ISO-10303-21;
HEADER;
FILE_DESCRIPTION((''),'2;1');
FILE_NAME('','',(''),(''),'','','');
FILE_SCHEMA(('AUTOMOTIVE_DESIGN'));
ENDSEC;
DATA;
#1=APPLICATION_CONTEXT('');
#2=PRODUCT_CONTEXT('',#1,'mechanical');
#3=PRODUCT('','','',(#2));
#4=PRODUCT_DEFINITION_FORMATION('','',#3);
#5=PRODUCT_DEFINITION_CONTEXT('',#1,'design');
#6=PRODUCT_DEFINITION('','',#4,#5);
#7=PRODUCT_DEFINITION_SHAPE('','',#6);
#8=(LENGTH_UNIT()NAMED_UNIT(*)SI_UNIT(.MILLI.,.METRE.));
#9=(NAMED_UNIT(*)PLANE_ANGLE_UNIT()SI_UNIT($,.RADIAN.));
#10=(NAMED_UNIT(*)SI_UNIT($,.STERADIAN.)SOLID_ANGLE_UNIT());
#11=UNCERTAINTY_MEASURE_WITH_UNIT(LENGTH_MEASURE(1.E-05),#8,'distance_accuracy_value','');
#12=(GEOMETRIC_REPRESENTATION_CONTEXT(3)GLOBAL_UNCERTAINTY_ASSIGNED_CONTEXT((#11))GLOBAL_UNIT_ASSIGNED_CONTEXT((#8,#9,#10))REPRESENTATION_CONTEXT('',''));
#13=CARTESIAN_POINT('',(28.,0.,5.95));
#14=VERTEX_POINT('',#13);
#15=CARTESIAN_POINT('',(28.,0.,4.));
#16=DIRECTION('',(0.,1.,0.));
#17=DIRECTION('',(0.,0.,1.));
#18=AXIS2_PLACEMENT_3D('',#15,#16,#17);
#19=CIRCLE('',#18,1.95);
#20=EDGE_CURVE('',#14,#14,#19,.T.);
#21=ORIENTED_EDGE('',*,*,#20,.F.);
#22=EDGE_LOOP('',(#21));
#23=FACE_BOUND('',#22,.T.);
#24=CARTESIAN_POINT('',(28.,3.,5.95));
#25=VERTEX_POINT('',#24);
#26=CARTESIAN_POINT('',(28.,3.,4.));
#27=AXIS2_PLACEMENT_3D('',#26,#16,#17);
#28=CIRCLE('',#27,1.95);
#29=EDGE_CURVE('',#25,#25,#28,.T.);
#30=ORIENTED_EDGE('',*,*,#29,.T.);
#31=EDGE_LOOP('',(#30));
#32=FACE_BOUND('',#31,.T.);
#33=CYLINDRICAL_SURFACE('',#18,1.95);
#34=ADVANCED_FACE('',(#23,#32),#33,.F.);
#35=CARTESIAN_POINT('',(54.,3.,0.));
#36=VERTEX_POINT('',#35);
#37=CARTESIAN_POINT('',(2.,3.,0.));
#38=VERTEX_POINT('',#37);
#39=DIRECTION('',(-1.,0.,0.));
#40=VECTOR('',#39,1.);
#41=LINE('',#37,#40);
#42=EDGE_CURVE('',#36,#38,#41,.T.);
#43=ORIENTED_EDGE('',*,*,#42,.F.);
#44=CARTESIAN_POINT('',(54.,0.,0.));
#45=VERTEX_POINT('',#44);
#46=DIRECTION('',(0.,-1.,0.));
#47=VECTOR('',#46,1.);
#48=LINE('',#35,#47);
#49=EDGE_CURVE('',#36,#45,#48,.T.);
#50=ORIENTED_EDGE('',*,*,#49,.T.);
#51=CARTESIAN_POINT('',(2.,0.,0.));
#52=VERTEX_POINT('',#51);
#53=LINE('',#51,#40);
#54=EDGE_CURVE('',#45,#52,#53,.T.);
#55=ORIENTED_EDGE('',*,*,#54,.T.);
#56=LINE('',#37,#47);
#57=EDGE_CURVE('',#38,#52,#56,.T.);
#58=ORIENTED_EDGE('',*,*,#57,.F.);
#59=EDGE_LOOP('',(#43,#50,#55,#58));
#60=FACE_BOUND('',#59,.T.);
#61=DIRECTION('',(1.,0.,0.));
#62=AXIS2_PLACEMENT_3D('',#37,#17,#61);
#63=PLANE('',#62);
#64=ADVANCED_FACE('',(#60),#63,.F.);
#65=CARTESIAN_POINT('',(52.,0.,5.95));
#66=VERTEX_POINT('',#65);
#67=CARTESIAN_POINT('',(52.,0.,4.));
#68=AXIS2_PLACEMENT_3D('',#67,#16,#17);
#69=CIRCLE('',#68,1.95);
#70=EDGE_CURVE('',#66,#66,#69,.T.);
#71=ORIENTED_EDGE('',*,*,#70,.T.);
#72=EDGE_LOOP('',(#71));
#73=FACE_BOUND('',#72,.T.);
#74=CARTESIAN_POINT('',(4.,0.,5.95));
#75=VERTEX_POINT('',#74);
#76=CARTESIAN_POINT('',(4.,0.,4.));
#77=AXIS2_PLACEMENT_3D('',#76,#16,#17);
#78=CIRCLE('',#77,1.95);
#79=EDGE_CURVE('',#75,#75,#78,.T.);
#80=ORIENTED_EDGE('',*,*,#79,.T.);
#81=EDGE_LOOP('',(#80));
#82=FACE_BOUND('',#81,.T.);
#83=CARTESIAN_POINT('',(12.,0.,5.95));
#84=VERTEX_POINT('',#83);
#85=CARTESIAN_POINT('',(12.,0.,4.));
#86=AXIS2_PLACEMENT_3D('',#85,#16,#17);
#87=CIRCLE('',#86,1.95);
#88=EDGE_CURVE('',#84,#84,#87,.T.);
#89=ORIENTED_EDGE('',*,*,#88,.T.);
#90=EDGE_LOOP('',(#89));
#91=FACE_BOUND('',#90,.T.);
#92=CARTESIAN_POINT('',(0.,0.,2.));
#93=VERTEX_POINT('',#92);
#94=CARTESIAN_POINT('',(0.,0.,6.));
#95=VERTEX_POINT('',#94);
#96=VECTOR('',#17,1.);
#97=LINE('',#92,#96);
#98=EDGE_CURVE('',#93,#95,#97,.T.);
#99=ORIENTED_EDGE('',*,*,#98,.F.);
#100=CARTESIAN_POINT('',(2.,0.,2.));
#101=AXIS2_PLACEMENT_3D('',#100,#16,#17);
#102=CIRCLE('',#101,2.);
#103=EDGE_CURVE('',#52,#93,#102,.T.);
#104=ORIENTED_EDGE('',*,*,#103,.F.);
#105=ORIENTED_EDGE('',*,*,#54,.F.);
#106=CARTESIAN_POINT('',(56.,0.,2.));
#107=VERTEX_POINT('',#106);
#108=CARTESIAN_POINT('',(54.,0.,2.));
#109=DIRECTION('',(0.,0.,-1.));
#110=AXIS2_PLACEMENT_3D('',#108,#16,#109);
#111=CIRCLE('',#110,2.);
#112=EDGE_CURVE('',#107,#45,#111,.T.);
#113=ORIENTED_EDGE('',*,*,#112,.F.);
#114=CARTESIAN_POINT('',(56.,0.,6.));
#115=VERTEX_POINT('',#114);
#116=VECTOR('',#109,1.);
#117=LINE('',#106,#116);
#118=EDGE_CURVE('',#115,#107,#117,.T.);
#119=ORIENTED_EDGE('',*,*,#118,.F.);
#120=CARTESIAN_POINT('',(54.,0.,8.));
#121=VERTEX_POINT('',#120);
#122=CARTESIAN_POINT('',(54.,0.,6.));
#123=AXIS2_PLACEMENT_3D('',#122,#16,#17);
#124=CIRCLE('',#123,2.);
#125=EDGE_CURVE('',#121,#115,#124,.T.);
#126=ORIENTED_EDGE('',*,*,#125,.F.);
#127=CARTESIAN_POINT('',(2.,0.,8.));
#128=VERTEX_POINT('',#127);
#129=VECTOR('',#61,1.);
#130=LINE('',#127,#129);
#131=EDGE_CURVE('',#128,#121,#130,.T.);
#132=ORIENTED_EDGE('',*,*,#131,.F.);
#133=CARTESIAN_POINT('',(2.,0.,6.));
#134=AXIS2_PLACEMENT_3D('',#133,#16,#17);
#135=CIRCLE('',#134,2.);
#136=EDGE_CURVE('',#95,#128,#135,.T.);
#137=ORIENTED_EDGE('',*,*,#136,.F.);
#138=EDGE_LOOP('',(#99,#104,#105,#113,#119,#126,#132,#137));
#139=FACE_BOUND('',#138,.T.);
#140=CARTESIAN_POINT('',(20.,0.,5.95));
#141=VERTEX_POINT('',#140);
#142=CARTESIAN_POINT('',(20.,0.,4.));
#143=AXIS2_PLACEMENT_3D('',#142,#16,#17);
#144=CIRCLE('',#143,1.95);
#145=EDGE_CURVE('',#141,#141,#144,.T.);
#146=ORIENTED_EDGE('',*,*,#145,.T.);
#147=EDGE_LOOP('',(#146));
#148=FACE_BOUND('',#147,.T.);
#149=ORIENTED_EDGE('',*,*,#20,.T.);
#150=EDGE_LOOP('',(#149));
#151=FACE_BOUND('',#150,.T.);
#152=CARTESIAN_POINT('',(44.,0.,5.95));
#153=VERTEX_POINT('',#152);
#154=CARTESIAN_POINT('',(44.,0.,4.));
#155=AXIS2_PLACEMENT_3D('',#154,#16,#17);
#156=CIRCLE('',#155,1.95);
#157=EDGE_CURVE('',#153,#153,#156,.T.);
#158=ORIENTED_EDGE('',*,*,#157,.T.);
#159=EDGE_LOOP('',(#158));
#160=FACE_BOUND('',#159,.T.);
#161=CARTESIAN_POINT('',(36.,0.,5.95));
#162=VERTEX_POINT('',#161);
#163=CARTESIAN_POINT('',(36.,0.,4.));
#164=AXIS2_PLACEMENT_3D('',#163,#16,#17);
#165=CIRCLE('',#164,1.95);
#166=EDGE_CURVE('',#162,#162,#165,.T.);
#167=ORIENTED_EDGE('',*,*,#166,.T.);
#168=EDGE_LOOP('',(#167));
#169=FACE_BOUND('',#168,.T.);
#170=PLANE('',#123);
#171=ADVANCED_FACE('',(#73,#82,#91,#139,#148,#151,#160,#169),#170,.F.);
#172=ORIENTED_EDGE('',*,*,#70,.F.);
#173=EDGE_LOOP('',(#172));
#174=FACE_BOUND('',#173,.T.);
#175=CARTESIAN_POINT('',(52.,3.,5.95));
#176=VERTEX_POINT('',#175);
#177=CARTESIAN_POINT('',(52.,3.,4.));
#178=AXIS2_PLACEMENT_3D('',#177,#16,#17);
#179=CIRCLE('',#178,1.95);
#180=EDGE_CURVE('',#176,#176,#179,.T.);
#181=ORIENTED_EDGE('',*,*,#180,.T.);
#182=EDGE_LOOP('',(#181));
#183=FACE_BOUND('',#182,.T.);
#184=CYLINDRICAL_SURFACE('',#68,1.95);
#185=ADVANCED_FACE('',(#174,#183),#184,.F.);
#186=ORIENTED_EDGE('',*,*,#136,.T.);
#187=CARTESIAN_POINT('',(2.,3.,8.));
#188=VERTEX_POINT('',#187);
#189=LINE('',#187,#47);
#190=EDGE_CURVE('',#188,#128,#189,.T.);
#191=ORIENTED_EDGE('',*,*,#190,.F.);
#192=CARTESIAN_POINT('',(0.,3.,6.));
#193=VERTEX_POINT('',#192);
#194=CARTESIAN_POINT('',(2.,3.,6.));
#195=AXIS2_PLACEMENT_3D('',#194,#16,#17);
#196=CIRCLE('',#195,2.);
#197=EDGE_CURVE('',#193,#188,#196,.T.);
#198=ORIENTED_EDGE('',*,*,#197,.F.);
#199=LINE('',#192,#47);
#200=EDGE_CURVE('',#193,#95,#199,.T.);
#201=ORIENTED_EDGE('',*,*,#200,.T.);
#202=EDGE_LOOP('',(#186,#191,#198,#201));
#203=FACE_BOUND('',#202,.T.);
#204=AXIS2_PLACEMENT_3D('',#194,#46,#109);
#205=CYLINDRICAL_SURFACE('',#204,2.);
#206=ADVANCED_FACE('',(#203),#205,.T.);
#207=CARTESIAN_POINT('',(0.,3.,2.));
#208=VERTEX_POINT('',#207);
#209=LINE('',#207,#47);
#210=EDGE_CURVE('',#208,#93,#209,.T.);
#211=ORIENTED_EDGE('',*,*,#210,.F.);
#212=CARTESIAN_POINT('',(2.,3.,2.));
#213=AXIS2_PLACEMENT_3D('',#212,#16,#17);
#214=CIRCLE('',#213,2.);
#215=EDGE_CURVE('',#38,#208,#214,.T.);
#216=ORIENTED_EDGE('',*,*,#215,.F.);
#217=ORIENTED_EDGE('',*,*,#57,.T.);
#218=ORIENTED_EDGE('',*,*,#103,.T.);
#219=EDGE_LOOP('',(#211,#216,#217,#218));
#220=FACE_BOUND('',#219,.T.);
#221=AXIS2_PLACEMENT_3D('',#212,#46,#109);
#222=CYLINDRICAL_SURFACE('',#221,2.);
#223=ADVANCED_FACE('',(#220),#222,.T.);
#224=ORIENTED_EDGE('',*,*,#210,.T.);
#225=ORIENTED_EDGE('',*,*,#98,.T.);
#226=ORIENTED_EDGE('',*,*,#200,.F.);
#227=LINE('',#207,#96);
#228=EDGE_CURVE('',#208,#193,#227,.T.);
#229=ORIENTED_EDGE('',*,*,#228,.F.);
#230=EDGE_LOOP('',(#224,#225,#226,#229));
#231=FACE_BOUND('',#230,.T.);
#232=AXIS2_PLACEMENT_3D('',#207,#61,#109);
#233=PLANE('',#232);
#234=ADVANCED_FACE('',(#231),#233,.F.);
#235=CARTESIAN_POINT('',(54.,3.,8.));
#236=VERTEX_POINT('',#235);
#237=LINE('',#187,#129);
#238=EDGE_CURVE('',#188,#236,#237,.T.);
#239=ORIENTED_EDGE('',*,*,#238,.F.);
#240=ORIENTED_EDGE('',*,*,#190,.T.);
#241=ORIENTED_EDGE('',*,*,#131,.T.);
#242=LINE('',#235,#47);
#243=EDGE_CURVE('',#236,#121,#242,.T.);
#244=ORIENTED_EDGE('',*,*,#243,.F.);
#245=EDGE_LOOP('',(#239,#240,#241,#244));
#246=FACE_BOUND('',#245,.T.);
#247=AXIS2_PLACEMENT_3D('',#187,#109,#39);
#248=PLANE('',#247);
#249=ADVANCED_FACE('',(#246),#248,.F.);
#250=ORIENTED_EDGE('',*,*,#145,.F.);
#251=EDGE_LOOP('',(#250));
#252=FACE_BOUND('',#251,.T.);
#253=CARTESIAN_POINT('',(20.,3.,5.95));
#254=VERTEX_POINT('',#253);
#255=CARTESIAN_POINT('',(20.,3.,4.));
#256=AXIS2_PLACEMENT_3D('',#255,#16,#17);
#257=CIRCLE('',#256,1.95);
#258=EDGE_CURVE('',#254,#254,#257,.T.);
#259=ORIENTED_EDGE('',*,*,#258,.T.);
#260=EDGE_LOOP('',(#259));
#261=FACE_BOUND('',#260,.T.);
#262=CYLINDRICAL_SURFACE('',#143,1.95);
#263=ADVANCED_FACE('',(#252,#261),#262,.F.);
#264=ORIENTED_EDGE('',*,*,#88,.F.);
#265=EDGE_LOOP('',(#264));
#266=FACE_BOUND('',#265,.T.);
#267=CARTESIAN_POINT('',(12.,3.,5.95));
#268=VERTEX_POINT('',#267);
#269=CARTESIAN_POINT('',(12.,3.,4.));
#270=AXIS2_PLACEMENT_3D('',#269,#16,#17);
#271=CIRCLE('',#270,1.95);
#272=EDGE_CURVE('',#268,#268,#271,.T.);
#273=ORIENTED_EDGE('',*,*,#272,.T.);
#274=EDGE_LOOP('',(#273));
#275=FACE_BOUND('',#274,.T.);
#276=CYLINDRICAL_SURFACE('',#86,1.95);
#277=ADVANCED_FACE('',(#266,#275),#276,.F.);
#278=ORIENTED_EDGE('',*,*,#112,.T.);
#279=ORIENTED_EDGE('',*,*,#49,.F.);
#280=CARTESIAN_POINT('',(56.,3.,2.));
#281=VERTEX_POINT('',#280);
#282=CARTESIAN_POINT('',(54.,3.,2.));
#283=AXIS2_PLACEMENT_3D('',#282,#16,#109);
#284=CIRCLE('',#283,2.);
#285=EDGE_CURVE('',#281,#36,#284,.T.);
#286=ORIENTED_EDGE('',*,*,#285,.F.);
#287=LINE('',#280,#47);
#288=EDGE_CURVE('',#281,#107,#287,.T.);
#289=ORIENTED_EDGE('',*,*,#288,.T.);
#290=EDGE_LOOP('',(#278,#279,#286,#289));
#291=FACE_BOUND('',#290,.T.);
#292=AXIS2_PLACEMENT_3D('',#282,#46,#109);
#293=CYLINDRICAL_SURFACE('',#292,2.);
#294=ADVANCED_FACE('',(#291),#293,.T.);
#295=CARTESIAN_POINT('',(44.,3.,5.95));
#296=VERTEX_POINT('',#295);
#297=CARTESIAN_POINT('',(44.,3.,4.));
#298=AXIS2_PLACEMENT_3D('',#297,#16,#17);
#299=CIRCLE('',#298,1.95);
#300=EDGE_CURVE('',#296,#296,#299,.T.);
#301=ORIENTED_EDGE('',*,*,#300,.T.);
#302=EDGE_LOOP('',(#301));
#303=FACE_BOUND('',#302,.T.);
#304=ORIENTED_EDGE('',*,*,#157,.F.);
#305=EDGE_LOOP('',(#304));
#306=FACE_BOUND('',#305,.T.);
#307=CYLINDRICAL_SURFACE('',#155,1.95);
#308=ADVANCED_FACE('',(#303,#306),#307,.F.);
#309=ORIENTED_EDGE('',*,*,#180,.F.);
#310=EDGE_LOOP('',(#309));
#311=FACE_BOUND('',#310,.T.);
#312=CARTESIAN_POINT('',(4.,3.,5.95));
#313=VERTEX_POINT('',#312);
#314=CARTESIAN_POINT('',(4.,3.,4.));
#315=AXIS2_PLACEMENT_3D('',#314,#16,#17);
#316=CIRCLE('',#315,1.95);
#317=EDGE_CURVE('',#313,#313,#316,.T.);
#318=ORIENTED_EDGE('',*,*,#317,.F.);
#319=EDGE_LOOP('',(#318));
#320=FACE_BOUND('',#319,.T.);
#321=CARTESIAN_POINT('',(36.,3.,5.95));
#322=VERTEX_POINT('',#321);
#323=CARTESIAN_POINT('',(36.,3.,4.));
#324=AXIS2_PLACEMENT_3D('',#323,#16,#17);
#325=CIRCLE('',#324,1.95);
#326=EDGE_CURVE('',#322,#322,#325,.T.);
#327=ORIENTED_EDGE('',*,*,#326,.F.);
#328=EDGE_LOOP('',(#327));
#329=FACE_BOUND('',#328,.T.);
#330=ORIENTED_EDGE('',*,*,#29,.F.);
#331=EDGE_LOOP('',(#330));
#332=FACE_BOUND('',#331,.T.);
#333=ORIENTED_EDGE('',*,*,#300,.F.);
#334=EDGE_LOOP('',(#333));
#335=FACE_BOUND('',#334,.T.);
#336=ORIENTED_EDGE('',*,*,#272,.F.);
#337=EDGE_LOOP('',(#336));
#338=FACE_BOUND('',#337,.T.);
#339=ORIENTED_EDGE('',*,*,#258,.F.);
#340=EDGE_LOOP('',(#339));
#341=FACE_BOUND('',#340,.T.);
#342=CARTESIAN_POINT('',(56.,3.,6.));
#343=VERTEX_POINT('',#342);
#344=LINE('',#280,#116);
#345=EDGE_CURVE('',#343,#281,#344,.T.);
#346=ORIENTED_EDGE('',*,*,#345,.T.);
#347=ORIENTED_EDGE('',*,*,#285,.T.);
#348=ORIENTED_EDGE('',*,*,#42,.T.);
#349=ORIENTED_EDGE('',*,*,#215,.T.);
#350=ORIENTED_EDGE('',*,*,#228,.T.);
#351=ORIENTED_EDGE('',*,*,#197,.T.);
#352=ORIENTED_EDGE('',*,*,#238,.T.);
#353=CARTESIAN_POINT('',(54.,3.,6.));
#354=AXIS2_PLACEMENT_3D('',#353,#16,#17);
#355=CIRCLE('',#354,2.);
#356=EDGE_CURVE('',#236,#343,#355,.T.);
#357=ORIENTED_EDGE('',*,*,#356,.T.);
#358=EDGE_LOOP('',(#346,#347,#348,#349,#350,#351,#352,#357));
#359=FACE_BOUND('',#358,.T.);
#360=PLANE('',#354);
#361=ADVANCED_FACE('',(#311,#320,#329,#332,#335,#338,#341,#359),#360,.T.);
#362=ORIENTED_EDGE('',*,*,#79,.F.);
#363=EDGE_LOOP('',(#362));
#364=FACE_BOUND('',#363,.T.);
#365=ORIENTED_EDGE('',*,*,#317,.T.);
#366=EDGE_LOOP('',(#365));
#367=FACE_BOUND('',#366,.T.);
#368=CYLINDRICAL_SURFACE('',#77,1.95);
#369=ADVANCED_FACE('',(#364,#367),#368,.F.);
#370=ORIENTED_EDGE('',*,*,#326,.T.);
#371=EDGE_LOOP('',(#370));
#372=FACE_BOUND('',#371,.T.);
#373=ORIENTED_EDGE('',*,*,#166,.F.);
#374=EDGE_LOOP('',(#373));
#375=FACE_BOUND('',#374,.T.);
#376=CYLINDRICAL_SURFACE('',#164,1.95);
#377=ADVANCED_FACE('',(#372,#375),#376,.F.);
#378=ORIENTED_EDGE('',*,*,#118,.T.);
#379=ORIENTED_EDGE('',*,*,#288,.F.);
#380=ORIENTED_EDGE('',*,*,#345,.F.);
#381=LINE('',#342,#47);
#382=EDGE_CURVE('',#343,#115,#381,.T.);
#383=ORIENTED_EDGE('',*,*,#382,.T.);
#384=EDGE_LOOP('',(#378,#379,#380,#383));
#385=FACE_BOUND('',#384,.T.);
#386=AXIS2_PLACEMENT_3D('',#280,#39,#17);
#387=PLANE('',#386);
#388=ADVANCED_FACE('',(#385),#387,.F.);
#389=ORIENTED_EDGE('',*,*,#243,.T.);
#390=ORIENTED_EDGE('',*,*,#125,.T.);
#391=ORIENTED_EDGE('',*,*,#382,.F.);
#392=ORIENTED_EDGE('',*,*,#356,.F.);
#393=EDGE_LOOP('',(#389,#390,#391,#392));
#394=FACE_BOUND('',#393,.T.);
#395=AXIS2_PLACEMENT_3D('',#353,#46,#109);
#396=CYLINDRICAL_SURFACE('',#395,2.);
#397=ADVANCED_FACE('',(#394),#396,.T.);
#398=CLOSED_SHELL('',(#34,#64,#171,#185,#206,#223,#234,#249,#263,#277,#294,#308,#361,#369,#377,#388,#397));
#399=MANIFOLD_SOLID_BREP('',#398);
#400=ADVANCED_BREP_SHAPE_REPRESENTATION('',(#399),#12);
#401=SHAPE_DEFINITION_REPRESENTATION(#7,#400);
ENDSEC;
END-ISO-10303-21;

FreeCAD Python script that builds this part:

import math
import FreeCAD as App
import Part
import Sketcher
from FreeCAD import Vector

doc = App.newDocument("Part")
body = doc.addObject("PartDesign::Body", "Body")

# Sketch on XZ plane
sketch1 = body.newObject("Sketcher::SketchObject", "Sketch")
sketch1.AttachmentSupport = (doc.getObject("XZ_Plane"), [""])
sketch1.MapMode = "FlatFace"
sketch1.addGeometry([
    Part.LineSegment(Vector(54, 0, 0), Vector(2, 0, 0)),  # 0
    Part.ArcOfCircle(Part.Circle(Vector(2, 2, 0), Vector(0, 0, 1), 2), math.radians(-180), math.radians(-90)),  # 1
    Part.LineSegment(Vector(0, 2, 0), Vector(0, 6, 0)),  # 2
    Part.ArcOfCircle(Part.Circle(Vector(2, 6, 0), Vector(0, 0, 1), 2), math.radians(90), math.radians(180)),  # 3
    Part.LineSegment(Vector(2, 8, 0), Vector(54, 8, 0)),  # 4
    Part.ArcOfCircle(Part.Circle(Vector(54, 6, 0), Vector(0, 0, 1), 2), math.radians(0), math.radians(90)),  # 5
    Part.LineSegment(Vector(56, 6, 0), Vector(56, 2, 0)),  # 6
    Part.ArcOfCircle(Part.Circle(Vector(54, 2, 0), Vector(0, 0, 1), 2), math.radians(-90), math.radians(0)),  # 7
], False)
sketch1.addConstraint([
    Sketcher.Constraint("Tangent", 0, 2, 1, 2),
    Sketcher.Constraint("Tangent", 1, 1, 2, 1),
    Sketcher.Constraint("Tangent", 2, 2, 3, 2),
    Sketcher.Constraint("Tangent", 3, 1, 4, 1),
    Sketcher.Constraint("Tangent", 4, 2, 5, 2),
    Sketcher.Constraint("Tangent", 5, 1, 6, 1),
    Sketcher.Constraint("Tangent", 6, 2, 7, 2),
    Sketcher.Constraint("Tangent", 7, 1, 0, 1),
    Sketcher.Constraint("Horizontal", 0),
    Sketcher.Constraint("Vertical", 2),
    Sketcher.Constraint("Horizontal", 4),
    Sketcher.Constraint("Vertical", 6),
    Sketcher.Constraint("Equal", 1, 3),
    Sketcher.Constraint("Equal", 3, 5),
    Sketcher.Constraint("Equal", 5, 7),
    Sketcher.Constraint("PointOnObject", 0, 2, -1),
    Sketcher.Constraint("PointOnObject", 1, 1, -2),
    Sketcher.Constraint("Radius", 1, 2.0),
    Sketcher.Constraint("DistanceX", 0, 2, 0, 1, 52.0),
    Sketcher.Constraint("DistanceY", 2, 1, 2, 2, 4.0),
])
pad1 = body.newObject("PartDesign::Pad", "Pad")
pad1.Profile = sketch1
pad1.Length = 3
pad1.Reversed = True

# Sketch on XZ plane
sketch2 = body.newObject("Sketcher::SketchObject", "Sketch001")
sketch2.AttachmentSupport = (doc.getObject("XZ_Plane"), [""])
sketch2.MapMode = "FlatFace"
sketch2.AttachmentOffset = App.Placement(Vector(0, 0, -3), App.Rotation())
sketch2.addGeometry([
    Part.Circle(Vector(52, 4, 0), Vector(0, 0, 1), 1.9),  # 0
    Part.Circle(Vector(44, 4, 0), Vector(0, 0, 1), 1.9),  # 1
    Part.Circle(Vector(-12, 4, 0), Vector(0, 0, 1), 1.9),  # 2
    Part.Circle(Vector(-4, 4, 0), Vector(0, 0, 1), 1.9),  # 3
    Part.Circle(Vector(4, 4, 0), Vector(0, 0, 1), 1.9),  # 4
    Part.Circle(Vector(12, 4, 0), Vector(0, 0, 1), 1.9),  # 5
    Part.Circle(Vector(20, 4, 0), Vector(0, 0, 1), 1.9),  # 6
    Part.Circle(Vector(28, 4, 0), Vector(0, 0, 1), 1.9),  # 7
    Part.Circle(Vector(36, 4, 0), Vector(0, 0, 1), 1.9),  # 8
], False)
sketch2.addConstraint([
    Sketcher.Constraint("Equal", 0, 1),
    Sketcher.Constraint("Equal", 1, 2),
    Sketcher.Constraint("Equal", 2, 3),
    Sketcher.Constraint("Equal", 3, 4),
    Sketcher.Constraint("Equal", 4, 5),
    Sketcher.Constraint("Equal", 5, 6),
    Sketcher.Constraint("Equal", 6, 7),
    Sketcher.Constraint("Equal", 7, 8),
    Sketcher.Constraint("Symmetric", 3, 3, 4, 3, -2),
    Sketcher.Constraint("Symmetric", 2, 3, 5, 3, -2),
    Sketcher.Constraint("Horizontal", 0, 3, 1, 3),
    Sketcher.Constraint("Horizontal", 1, 3, 2, 3),
    Sketcher.Constraint("Horizontal", 2, 3, 3, 3),
    Sketcher.Constraint("Horizontal", 5, 3, 6, 3),
    Sketcher.Constraint("Horizontal", 6, 3, 7, 3),
    Sketcher.Constraint("Horizontal", 7, 3, 8, 3),
    Sketcher.Constraint("Diameter", 0, 3.9),
    Sketcher.Constraint("DistanceX", -1, 1, 0, 3, 52.0),
    Sketcher.Constraint("DistanceY", -1, 1, 0, 3, 4.0),
    Sketcher.Constraint("DistanceX", -1, 1, 1, 3, 44.0),
    Sketcher.Constraint("DistanceX", 2, 3, -1, 1, 12.0),
    Sketcher.Constraint("DistanceX", 3, 3, -1, 1, 4.0),
    Sketcher.Constraint("DistanceX", -1, 1, 6, 3, 20.0),
    Sketcher.Constraint("DistanceX", -1, 1, 7, 3, 28.0),
    Sketcher.Constraint("DistanceX", -1, 1, 8, 3, 36.0),
])
pocket1 = body.newObject("PartDesign::Pocket", "Pocket")
pocket1.Profile = sketch2
pocket1.Type = "ThroughAll"
pocket1.Reversed = True

doc.recompute()
